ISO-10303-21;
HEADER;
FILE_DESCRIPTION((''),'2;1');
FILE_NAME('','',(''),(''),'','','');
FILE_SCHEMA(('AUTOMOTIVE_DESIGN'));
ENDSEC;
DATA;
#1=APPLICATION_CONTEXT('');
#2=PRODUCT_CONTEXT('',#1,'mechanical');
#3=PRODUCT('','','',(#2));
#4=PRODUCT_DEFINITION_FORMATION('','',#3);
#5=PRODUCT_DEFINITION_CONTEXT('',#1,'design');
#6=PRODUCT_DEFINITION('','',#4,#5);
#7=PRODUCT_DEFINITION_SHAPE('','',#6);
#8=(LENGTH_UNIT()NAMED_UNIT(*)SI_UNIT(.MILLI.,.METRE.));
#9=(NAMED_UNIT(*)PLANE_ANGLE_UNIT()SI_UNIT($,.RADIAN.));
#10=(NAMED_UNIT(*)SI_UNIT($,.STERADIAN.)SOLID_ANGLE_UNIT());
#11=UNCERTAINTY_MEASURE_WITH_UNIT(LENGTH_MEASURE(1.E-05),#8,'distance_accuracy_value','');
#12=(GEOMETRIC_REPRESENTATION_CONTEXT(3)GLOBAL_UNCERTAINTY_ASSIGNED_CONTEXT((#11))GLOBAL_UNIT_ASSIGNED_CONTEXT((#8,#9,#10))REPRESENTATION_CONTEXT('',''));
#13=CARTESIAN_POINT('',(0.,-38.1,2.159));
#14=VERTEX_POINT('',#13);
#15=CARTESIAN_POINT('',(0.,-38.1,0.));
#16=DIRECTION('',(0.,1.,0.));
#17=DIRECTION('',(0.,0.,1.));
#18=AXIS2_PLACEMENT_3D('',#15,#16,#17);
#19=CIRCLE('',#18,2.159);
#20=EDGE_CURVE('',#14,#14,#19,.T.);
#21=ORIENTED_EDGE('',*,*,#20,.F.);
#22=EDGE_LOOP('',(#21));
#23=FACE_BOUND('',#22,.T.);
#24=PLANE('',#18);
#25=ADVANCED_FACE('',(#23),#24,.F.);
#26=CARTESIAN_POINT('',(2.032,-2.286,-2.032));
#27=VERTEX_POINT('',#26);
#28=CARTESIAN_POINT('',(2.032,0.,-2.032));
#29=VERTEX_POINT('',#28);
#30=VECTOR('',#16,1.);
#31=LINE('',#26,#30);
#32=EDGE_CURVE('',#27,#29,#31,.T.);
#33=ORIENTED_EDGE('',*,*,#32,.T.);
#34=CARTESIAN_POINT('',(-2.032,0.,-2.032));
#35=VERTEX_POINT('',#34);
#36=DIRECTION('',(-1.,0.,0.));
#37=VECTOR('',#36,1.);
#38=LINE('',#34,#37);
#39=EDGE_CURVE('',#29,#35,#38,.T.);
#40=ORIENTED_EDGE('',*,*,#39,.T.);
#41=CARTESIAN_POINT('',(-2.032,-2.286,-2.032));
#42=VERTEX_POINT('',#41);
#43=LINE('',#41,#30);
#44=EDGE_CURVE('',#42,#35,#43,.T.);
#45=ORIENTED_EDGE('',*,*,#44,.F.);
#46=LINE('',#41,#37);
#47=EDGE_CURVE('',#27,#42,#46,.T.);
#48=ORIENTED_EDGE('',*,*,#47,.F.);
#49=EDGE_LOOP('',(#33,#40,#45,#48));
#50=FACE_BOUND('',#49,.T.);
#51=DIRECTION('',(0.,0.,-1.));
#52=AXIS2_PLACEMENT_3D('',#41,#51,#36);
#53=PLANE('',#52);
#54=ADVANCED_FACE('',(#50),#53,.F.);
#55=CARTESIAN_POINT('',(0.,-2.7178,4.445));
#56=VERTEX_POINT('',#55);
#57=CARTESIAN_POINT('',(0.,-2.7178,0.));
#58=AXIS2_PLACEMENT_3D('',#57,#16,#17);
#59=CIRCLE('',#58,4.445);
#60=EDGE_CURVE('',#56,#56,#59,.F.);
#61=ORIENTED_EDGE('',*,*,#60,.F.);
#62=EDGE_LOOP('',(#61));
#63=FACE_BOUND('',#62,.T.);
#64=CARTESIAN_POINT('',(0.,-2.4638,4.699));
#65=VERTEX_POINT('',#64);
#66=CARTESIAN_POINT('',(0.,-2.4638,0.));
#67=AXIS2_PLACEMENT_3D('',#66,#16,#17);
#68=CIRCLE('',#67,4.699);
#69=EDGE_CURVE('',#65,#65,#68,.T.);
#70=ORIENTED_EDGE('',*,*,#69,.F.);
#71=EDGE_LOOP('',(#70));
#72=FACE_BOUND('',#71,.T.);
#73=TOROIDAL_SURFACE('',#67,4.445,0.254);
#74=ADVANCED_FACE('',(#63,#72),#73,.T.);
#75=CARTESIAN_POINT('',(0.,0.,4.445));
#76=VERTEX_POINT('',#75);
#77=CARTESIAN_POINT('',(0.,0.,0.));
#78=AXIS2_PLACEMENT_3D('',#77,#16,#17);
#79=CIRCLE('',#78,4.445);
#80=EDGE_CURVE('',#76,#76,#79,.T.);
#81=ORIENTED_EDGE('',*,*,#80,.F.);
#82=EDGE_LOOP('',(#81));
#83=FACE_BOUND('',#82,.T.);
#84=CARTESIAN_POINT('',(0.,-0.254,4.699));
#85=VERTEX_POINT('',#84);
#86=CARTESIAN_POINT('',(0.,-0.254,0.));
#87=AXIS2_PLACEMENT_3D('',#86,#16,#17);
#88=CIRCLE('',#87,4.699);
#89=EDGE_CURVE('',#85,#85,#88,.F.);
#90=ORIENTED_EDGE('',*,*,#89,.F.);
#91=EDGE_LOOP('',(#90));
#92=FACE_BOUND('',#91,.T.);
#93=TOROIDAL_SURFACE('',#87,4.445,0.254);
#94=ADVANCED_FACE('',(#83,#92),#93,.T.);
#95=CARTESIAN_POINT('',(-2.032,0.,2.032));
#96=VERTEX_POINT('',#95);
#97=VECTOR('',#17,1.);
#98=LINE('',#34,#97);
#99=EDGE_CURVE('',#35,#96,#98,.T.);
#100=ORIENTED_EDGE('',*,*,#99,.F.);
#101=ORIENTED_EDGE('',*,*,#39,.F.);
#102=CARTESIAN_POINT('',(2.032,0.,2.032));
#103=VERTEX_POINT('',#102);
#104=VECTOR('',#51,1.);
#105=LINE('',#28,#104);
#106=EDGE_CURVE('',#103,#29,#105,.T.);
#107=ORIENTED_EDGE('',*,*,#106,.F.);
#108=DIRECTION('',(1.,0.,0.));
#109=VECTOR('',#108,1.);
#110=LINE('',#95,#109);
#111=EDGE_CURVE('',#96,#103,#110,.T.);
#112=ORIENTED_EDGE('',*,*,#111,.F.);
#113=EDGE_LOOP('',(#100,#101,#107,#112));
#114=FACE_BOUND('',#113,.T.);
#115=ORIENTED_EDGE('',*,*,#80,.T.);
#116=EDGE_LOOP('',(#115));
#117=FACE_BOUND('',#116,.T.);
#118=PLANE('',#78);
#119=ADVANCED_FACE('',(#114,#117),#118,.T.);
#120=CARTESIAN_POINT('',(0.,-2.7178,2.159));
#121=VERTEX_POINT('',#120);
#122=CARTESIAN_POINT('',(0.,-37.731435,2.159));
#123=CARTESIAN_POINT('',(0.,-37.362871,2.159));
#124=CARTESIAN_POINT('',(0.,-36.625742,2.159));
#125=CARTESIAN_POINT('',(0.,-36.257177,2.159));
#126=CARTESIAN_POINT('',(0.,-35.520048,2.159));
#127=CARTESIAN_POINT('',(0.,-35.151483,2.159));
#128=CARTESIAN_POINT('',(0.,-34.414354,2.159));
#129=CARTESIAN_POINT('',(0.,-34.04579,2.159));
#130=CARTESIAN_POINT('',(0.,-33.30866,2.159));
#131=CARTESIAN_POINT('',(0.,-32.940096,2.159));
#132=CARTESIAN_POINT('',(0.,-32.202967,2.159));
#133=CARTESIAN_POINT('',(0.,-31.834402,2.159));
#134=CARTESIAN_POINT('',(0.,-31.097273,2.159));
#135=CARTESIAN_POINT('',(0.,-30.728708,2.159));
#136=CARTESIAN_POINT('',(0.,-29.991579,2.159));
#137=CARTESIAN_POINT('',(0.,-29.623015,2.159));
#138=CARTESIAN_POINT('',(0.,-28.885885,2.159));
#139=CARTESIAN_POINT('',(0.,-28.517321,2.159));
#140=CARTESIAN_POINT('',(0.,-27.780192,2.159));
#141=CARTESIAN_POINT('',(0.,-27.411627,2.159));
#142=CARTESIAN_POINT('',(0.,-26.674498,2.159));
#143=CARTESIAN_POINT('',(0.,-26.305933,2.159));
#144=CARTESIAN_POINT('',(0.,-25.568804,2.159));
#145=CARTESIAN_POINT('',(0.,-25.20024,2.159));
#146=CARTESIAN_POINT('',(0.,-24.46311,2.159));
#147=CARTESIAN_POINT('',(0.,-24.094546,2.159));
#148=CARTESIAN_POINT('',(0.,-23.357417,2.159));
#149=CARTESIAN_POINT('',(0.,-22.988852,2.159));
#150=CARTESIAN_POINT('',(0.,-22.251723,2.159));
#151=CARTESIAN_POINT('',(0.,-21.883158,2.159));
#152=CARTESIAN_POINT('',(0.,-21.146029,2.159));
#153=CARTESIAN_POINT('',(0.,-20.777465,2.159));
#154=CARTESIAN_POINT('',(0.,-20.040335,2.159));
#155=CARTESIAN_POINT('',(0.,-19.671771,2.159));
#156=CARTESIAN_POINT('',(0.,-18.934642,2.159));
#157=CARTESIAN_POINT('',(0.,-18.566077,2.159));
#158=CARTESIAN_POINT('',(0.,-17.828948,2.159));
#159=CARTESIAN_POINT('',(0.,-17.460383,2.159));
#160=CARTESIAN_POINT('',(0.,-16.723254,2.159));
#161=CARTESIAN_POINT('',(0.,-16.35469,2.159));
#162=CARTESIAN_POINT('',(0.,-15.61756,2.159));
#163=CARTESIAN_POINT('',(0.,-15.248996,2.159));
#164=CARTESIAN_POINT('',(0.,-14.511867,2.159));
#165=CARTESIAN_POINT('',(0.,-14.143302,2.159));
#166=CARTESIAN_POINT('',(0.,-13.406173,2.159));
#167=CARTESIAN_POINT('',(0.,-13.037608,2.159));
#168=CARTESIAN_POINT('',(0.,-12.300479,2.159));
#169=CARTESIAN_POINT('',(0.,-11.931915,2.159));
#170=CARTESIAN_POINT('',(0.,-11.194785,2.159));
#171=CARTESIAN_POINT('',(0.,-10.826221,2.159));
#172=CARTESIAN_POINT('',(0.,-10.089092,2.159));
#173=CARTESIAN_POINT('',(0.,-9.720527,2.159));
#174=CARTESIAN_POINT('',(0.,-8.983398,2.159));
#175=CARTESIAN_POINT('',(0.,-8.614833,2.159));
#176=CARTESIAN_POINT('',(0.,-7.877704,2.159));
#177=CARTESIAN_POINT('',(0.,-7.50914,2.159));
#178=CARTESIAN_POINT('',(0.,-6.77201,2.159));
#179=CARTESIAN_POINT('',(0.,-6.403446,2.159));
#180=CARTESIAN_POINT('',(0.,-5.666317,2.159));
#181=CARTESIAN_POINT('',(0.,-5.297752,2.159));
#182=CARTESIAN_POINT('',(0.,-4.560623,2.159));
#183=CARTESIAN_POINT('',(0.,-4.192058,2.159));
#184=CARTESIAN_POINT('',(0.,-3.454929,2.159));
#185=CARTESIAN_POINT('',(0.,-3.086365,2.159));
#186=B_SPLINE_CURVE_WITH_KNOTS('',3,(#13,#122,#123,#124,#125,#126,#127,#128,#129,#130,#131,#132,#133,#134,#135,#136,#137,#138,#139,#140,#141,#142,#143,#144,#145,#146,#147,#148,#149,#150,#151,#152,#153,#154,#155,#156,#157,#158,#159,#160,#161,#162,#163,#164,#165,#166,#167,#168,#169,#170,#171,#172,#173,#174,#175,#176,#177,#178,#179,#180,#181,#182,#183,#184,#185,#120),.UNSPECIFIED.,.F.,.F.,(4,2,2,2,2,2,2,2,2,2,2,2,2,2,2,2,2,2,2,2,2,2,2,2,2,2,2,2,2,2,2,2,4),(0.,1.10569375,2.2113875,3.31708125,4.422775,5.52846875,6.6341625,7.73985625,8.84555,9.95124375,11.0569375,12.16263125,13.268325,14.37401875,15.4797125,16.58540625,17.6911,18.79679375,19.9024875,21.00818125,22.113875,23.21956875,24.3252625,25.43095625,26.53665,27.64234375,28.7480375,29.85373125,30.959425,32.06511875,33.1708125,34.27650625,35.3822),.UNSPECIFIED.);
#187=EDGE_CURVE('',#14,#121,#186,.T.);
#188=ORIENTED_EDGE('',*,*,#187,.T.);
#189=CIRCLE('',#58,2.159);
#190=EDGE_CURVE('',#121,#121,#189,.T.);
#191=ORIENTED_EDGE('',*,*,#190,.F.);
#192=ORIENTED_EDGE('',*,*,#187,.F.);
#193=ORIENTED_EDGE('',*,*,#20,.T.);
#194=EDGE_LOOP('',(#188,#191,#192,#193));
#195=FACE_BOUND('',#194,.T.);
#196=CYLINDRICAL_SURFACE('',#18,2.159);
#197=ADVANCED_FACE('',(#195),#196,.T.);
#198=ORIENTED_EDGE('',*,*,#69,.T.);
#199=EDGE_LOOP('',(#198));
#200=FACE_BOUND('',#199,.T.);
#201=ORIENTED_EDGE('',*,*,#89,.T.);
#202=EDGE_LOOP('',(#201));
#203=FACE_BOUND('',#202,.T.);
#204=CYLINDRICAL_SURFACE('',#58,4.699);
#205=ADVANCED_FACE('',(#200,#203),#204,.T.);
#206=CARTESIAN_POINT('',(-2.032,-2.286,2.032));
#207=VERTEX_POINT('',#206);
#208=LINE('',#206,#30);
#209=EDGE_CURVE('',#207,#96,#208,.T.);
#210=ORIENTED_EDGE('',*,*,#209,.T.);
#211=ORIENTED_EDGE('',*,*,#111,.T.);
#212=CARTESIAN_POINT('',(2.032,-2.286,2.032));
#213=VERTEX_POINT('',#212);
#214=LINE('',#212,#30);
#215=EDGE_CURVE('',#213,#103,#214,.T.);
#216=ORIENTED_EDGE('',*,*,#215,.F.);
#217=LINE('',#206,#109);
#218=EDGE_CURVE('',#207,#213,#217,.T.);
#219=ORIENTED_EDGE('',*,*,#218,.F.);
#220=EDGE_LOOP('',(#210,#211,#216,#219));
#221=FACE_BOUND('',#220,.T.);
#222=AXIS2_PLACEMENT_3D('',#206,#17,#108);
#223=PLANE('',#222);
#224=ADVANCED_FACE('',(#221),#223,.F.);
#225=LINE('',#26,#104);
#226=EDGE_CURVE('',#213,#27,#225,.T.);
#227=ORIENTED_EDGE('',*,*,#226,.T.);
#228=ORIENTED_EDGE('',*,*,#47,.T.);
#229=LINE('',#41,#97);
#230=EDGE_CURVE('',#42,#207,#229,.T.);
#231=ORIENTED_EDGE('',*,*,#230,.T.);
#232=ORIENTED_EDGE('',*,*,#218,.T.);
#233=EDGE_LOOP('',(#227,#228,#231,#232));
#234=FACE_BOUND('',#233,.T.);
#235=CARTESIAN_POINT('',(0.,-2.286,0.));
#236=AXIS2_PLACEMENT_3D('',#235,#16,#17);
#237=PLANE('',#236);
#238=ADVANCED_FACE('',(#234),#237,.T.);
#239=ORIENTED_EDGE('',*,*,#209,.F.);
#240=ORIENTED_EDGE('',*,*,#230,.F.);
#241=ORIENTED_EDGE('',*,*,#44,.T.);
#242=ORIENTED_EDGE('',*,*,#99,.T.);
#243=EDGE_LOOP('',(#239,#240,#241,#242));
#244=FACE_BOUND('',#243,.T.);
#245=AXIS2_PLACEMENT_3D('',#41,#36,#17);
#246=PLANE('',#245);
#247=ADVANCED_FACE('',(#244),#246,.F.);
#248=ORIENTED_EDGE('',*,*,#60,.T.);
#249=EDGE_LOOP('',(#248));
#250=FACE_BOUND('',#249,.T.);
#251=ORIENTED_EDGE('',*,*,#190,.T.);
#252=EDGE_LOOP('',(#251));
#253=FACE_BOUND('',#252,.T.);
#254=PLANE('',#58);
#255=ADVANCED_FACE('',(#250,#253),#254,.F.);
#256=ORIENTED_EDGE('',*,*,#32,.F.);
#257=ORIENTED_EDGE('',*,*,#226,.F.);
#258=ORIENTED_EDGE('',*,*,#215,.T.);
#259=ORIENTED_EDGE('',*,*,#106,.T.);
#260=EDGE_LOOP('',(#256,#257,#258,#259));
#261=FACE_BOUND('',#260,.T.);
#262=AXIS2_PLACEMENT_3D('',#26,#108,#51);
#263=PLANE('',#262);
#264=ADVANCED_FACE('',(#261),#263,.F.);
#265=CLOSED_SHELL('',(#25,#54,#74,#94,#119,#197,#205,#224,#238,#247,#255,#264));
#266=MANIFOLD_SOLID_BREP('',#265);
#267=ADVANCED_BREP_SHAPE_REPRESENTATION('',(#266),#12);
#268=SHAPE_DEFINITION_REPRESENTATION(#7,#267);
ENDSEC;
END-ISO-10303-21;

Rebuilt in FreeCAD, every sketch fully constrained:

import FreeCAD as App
import Part
import Sketcher
from FreeCAD import Vector
Q = App.Units.Quantity


def edges_at(feature, points):
    """Names of the edges that pass closest to the given points."""
    edges = feature.Shape.Edges
    near = lambda p: min(range(len(edges)), key=lambda i: edges[i].distToShape(Part.Vertex(*p))[0])
    return sorted({f"Edge{near(p) + 1}" for p in points})


def add_polygon(sketch, points):
    """Adds a closed chain of lines whose ends are joined by coincident constraints."""
    first, n = sketch.GeometryCount, len(points)
    for a, b in zip(points, points[1:] + points[:1]):
        sketch.addGeometry(Part.LineSegment(App.Vector(*a, 0), App.Vector(*b, 0)), False)
    for i in range(n):
        sketch.addConstraint(Sketcher.Constraint("Coincident", first + i, 2, first + (i + 1) % n, 1))

doc = App.newDocument("Part")
body = doc.addObject("PartDesign::Body", "Body")

sketch1 = body.newObject("Sketcher::SketchObject", "Sketch")
sketch1.AttachmentSupport = (doc.getObject("XZ_Plane"), [""])
sketch1.MapMode = "FlatFace"
sketch1.addGeometry(Part.Circle(Vector(0, 0, 0), Vector(0, 0, 1), 4.699), False)
sketch1.addConstraint([
    Sketcher.Constraint("Coincident", 0, 3, -1, 1),
    Sketcher.Constraint("Diameter", 0, Q("0.37 in")),
])
pad1 = body.newObject("PartDesign::Pad", "Pad")
pad1.Profile = sketch1
pad1.Length = Q("0.107 in")

sketch2 = body.newObject("Sketcher::SketchObject", "Sketch001")
sketch2.AttachmentSupport = (doc.getObject("XZ_Plane"), [""])
sketch2.MapMode = "FlatFace"
sketch2.addGeometry(Part.Circle(Vector(0, 0, 0), Vector(0, 0, 1), 2.159), False)
sketch2.addConstraint([
    Sketcher.Constraint("Coincident", 0, 3, -1, 1),
    Sketcher.Constraint("Diameter", 0, Q("0.17 in")),
])
pad2 = body.newObject("PartDesign::Pad", "Pad001")
pad2.Profile = sketch2
pad2.Length = Q("1.5 in")

sketch3 = body.newObject("Sketcher::SketchObject", "Sketch002")
sketch3.AttachmentSupport = (doc.getObject("XZ_Plane"), [""])
sketch3.MapMode = "FlatFace"
add_polygon(sketch3, [(-2.032, -2.032), (-2.032, 2.032), (2.032, 2.032), (2.032, -2.032)])
sketch3.addConstraint([
    Sketcher.Constraint("Vertical", 0),
    Sketcher.Constraint("Horizontal", 1),
    Sketcher.Constraint("Vertical", 2),
    Sketcher.Constraint("Horizontal", 3),
    Sketcher.Constraint("Symmetric", 0, 2, 2, 2, -1, 1),
    Sketcher.Constraint("Equal", 3, 0),
    Sketcher.Constraint("DistanceX", 1, 1, 1, 2, Q("0.16 in")),
])
pocket1 = body.newObject("PartDesign::Pocket", "Pocket")
pocket1.Profile = sketch3
pocket1.Length = Q("0.09 in")
pocket1.Reversed = True
doc.recompute()

fillet = body.newObject("PartDesign::Fillet", "Fillet")
fillet.Base = (pocket1, edges_at(pocket1, [(0, 0, -4.699), (0, -2.718, -4.699)]))
fillet.Radius = Q("0.01 in")

doc.recompute()
